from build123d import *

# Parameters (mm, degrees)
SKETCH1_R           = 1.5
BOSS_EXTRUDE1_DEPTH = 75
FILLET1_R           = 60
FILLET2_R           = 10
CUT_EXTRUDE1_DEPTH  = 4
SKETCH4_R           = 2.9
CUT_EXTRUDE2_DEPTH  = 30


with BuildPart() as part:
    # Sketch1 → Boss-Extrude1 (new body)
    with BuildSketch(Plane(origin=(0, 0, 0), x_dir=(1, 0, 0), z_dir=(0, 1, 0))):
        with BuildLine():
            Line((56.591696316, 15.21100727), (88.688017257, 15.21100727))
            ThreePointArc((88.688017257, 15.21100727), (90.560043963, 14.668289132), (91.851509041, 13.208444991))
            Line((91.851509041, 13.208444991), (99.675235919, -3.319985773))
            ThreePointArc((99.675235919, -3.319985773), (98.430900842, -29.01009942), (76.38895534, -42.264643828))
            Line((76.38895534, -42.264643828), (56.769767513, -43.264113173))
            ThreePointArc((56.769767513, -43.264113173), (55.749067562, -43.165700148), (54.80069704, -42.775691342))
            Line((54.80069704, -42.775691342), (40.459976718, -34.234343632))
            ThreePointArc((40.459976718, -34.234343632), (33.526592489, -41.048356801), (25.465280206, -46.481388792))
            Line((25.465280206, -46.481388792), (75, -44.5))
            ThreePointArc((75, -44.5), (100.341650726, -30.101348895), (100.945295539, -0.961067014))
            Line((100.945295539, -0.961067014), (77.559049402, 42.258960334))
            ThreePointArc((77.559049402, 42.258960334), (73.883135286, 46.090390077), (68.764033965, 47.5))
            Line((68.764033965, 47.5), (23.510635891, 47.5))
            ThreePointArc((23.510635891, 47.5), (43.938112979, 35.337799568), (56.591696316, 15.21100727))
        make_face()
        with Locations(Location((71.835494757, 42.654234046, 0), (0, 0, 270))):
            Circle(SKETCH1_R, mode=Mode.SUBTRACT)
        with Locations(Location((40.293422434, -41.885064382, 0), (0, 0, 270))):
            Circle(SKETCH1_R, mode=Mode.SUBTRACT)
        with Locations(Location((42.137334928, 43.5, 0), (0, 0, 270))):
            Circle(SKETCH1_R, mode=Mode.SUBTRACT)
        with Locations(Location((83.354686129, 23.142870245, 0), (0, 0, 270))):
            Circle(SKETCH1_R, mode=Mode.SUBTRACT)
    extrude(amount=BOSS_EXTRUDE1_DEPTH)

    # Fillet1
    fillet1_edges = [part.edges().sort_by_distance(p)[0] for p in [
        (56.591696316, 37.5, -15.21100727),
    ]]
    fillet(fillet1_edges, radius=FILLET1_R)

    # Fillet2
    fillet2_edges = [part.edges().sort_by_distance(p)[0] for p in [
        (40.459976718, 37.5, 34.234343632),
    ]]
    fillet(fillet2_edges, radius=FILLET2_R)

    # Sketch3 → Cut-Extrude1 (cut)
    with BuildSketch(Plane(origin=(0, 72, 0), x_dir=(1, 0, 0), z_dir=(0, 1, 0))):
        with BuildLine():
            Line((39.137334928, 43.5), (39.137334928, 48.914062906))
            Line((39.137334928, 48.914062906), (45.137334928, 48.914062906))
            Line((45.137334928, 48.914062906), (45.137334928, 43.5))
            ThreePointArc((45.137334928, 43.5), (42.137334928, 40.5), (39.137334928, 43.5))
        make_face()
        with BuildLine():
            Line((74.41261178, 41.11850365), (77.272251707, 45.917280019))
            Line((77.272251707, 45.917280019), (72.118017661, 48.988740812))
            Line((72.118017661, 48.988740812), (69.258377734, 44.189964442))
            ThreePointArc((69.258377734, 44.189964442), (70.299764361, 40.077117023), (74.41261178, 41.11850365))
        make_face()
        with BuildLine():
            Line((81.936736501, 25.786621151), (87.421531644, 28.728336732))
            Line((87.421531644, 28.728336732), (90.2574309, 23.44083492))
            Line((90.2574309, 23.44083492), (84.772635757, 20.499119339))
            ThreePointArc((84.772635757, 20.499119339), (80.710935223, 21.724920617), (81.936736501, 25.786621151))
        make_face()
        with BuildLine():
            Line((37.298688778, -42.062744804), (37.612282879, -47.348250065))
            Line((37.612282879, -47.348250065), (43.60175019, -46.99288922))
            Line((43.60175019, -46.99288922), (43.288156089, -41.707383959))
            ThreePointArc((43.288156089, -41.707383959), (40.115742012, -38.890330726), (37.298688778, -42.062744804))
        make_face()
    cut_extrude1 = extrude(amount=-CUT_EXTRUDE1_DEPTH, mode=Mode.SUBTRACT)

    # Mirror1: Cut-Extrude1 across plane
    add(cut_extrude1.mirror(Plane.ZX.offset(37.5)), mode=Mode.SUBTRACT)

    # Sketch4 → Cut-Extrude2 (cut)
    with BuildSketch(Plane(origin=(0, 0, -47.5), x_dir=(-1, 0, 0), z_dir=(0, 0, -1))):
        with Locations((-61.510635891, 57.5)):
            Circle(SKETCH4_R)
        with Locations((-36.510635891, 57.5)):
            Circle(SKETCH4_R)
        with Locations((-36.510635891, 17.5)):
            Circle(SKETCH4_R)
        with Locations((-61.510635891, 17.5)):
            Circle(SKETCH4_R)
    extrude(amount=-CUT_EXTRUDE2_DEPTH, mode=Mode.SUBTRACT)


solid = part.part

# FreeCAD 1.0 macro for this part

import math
import FreeCAD as App
import Part
import Sketcher
from FreeCAD import Vector
Q = App.Units.Quantity


def edges_at(feature, points):
    """Names of the edges that pass closest to the given points."""
    edges = feature.Shape.Edges
    near = lambda p: min(range(len(edges)), key=lambda i: edges[i].distToShape(Part.Vertex(*p))[0])
    return sorted({f"Edge{near(p) + 1}" for p in points})

doc = App.newDocument("Part")
params = doc.addObject("Spreadsheet::Sheet", "Params")
for row, (alias, value) in enumerate([
    ("sketch1_diameter", "3 mm"),
    ("sketch1_radius", "53 mm"),
    ("sketch1_radius2", "10 mm"),
    ("sketch1_radius3", "3.5 mm"),
    ("sketch1_radius4", "27.3 mm"),
    ("pad1_length", "75 mm"),
    ("fillet_radius", "60 mm"),
    ("fillet2_radius", "10 mm"),
    ("sketch2_radius", "3 mm"),
    ("pocket1_length", "4 mm"),
    ("sketch3_diameter", "5.8 mm"),
    ("pocket2_length", "30 mm"),
], start=1):
    params.set(f"A{row}", alias)
    params.set(f"B{row}", "=" + value)
    params.setAlias(f"B{row}", alias)

body = doc.addObject("PartDesign::Body", "Body")

sketch1 = body.newObject("Sketcher::SketchObject", "Sketch")
sketch1.AttachmentSupport = (doc.getObject("XZ_Plane"), [""])
sketch1.MapMode = "FlatFace"
sketch1.addGeometry([
    Part.LineSegment(Vector(56.6, -15.2, 0), Vector(88.7, -15.2, 0)),
    Part.ArcOfCircle(Part.Circle(Vector(88.7, -11.7, 0), Vector(0, 0, 1), 3.5), math.radians(-90), math.radians(-25)),
    Part.LineSegment(Vector(91.9, -13.2, 0), Vector(99.7, 3.3, 0)),
    Part.ArcOfCircle(Part.Circle(Vector(75, 15, 0), Vector(0, 0, 1), 27.3), math.radians(-25), math.radians(87)),
    Part.LineSegment(Vector(76.4, 42.3, 0), Vector(56.8, 43.3, 0)),
    Part.ArcOfCircle(Part.Circle(Vector(56.6, 39.8, 0), Vector(0, 0, 1), 3.5), math.radians(87), math.radians(121)),
    Part.LineSegment(Vector(54.8, 42.8, 0), Vector(40.5, 34.2, 0)),
    Part.ArcOfCircle(Part.Circle(Vector(0, 0, 0), Vector(0, 0, 1), 53), math.radians(40), math.radians(61)),
    Part.LineSegment(Vector(25.5, 46.5, 0), Vector(75, 44.5, 0)),
    Part.ArcOfCircle(Part.Circle(Vector(75, 15, 0), Vector(0, 0, 1), 29.5), math.radians(-28), math.radians(90)),
    Part.LineSegment(Vector(100.9, 1, 0), Vector(77.6, -42.3, 0)),
    Part.ArcOfCircle(Part.Circle(Vector(68.8, -37.5, 0), Vector(0, 0, 1), 10), math.radians(-90), math.radians(-28)),
    Part.LineSegment(Vector(68.8, -47.5, 0), Vector(23.5, -47.5, 0)),
    Part.ArcOfCircle(Part.Circle(Vector(8.5, 1, 0), Vector(0, 0, 1), 50.8), math.radians(-73), math.radians(-19)),
    Part.Circle(Vector(40.3, 41.9, 0), Vector(0, 0, 1), 1.5),
    Part.Circle(Vector(42.1, -43.5, 0), Vector(0, 0, 1), 1.5),
    Part.Circle(Vector(71.8, -42.7, 0), Vector(0, 0, 1), 1.5),
    Part.Circle(Vector(83.4, -23.1, 0), Vector(0, 0, 1), 1.5),
], False)
sketch1.addConstraint([
    Sketcher.Constraint("Tangent", 0, 2, 1, 1),
    Sketcher.Constraint("Tangent", 1, 2, 2, 1),
    Sketcher.Constraint("Tangent", 2, 2, 3, 1),
    Sketcher.Constraint("Tangent", 3, 2, 4, 1),
    Sketcher.Constraint("Tangent", 4, 2, 5, 1),
    Sketcher.Constraint("Tangent", 5, 2, 6, 1),
    Sketcher.Constraint("Coincident", 6, 2, 7, 1),
    Sketcher.Constraint("Coincident", 7, 2, 8, 1),
    Sketcher.Constraint("Coincident", 8, 2, 9, 2),
    Sketcher.Constraint("Tangent", 9, 1, 10, 1),
    Sketcher.Constraint("Tangent", 10, 2, 11, 2),
    Sketcher.Constraint("Tangent", 11, 1, 12, 1),
    Sketcher.Constraint("Coincident", 12, 2, 13, 1),
    Sketcher.Constraint("Coincident", 13, 2, 0, 1),
    Sketcher.Constraint("Horizontal", 0),
    Sketcher.Constraint("Horizontal", 12),
    Sketcher.Constraint("Coincident", 7, 3, -1, 1),
    Sketcher.Constraint("Coincident", 9, 3, 3, 3),
    Sketcher.Constraint("Equal", 1, 5),
    Sketcher.Constraint("Equal", 14, 15),
    Sketcher.Constraint("Equal", 15, 16),
    Sketcher.Constraint("Equal", 16, 17),
    Sketcher.Constraint("Vertical", 9, 3, 8, 2),
    Sketcher.Constraint("Vertical", 5, 3, 13, 2),
    Sketcher.Constraint("Diameter", 14, Q("3 mm")),
    Sketcher.Constraint("Radius", 7, Q("53 mm")),
    Sketcher.Constraint("Radius", 11, Q("10 mm")),
    Sketcher.Constraint("Radius", 1, Q("3.5 mm")),
    Sketcher.Constraint("Radius", 3, Q("27.3 mm")),
    Sketcher.Constraint("Radius", 9, Q("29.5 mm")),
    Sketcher.Constraint("DistanceX", -1, 1, 3, 3, Q("75 mm")),
    Sketcher.Constraint("DistanceY", -1, 1, 3, 3, Q("15 mm")),
    Sketcher.Constraint("DistanceY", 15, 3, 11, 3, Q("6 mm")),
    Sketcher.Constraint("DistanceY", 11, 3, -1, 1, Q("37.5 mm")),
    Sketcher.Constraint("Radius", 13, Q("50.78355 mm")),
    Sketcher.Constraint("DistanceX", 12, 2, 12, 1, Q("45.253398 mm")),
    Sketcher.Constraint("DistanceX", 5, 2, 5, 3, Q("1.790999 mm")),
    Sketcher.Constraint("Distance", 2, Q("18.2866 mm")),
    Sketcher.Constraint("DistanceX", 0, 1, 0, 2, Q("32.096321 mm")),
    Sketcher.Constraint("DistanceX", 15, 3, 11, 3, Q("26.626699 mm")),
    Sketcher.Constraint("DistanceY", 6, 2, 3, 2, Q("8.0303 mm")),
    Sketcher.Constraint("DistanceX", 13, 2, 16, 3, Q("15.243798 mm")),
    Sketcher.Constraint("Distance", 4, Q("19.64463 mm")),
    Sketcher.Constraint("Distance", 8, Q("49.574332 mm")),
    Sketcher.Constraint("DistanceY", 17, 3, -1, 1, Q("23.14287 mm")),
    Sketcher.Constraint("DistanceX", -1, 1, 10, 2, Q("77.559049 mm")),
    Sketcher.Constraint("DistanceY", 5, 3, 14, 3, Q("2.116418 mm")),
    Sketcher.Constraint("DistanceX", 17, 3, 1, 3, Q("5.333331 mm")),
    Sketcher.Constraint("DistanceX", -1, 1, 14, 3, Q("40.293422 mm")),
    Sketcher.Constraint("DistanceY", 16, 3, -1, 1, Q("42.654234 mm")),
])
sketch1.setExpression("Constraints[24]", "Params.sketch1_diameter")
sketch1.setExpression("Constraints[25]", "Params.sketch1_radius")
sketch1.setExpression("Constraints[26]", "Params.sketch1_radius2")
sketch1.setExpression("Constraints[27]", "Params.sketch1_radius3")
sketch1.setExpression("Constraints[28]", "Params.sketch1_radius4")
pad1 = body.newObject("PartDesign::Pad", "Pad")
pad1.Profile = sketch1
pad1.setExpression("Length", "Params.pad1_length")
pad1.Reversed = True
doc.recompute()

fillet = body.newObject("PartDesign::Fillet", "Fillet")
fillet.Base = (pad1, edges_at(pad1, [(56.592, 37.5, -15.211)]))
fillet.setExpression("Radius", "Params.fillet_radius")
doc.recompute()

fillet2 = body.newObject("PartDesign::Fillet", "Fillet001")
fillet2.Base = (fillet, edges_at(fillet, [(40.46, 37.5, 34.234)]))
fillet2.setExpression("Radius", "Params.fillet2_radius")

sketch2 = body.newObject("Sketcher::SketchObject", "Sketch001")
sketch2.AttachmentSupport = (doc.getObject("XZ_Plane"), [""])
sketch2.MapMode = "FlatFace"
sketch2.AttachmentOffset = App.Placement(Vector(0, 0, -72), App.Rotation())
sketch2.addGeometry([
    Part.LineSegment(Vector(39.1, -48.9, 0), Vector(39.1, -43.5, 0)),
    Part.ArcOfCircle(Part.Circle(Vector(42.1, -43.5, 0), Vector(0, 0, 1), 3), math.radians(0), math.radians(180)),
    Part.LineSegment(Vector(45.1, -43.5, 0), Vector(45.1, -48.9, 0)),
    Part.LineSegment(Vector(45.1, -48.9, 0), Vector(39.1, -48.9, 0)),
    Part.LineSegment(Vector(74.4, -41.1, 0), Vector(77.3, -45.9, 0)),
    Part.LineSegment(Vector(77.3, -45.9, 0), Vector(72.1, -49, 0)),
    Part.LineSegment(Vector(72.1, -49, 0), Vector(69.3, -44.2, 0)),
    Part.ArcOfCircle(Part.Circle(Vector(71.8, -42.7, 0), Vector(0, 0, 1), 3), math.radians(31), math.radians(211)),
    Part.LineSegment(Vector(87.4, -28.7, 0), Vector(81.9, -25.8, 0)),
    Part.ArcOfCircle(Part.Circle(Vector(83.4, -23.1, 0), Vector(0, 0, 1), 3), math.radians(62), math.radians(242)),
    Part.LineSegment(Vector(84.8, -20.5, 0), Vector(90.3, -23.4, 0)),
    Part.LineSegment(Vector(90.3, -23.4, 0), Vector(87.4, -28.7, 0)),
    Part.LineSegment(Vector(37.3, 42.1, 0), Vector(37.6, 47.3, 0)),
    Part.LineSegment(Vector(37.6, 47.3, 0), Vector(43.6, 47, 0)),
    Part.LineSegment(Vector(43.6, 47, 0), Vector(43.3, 41.7, 0)),
    Part.ArcOfCircle(Part.Circle(Vector(40.3, 41.9, 0), Vector(0, 0, 1), 3), math.radians(177), math.radians(357)),
], False)
sketch2.addConstraint([
    Sketcher.Constraint("Tangent", 0, 2, 1, 2),
    Sketcher.Constraint("Tangent", 1, 1, 2, 1),
    Sketcher.Constraint("Coincident", 2, 2, 3, 1),
    Sketcher.Constraint("Coincident", 3, 2, 0, 1),
    Sketcher.Constraint("Coincident", 4, 2, 5, 1),
    Sketcher.Constraint("Coincident", 5, 2, 6, 1),
    Sketcher.Constraint("Tangent", 6, 2, 7, 2),
    Sketcher.Constraint("Tangent", 7, 1, 4, 1),
    Sketcher.Constraint("Tangent", 8, 2, 9, 2),
    Sketcher.Constraint("Tangent", 9, 1, 10, 1),
    Sketcher.Constraint("Coincident", 10, 2, 11, 1),
    Sketcher.Constraint("Coincident", 11, 2, 8, 1),
    Sketcher.Constraint("Coincident", 12, 2, 13, 1),
    Sketcher.Constraint("Coincident", 13, 2, 14, 1),
    Sketcher.Constraint("Tangent", 14, 2, 15, 2),
    Sketcher.Constraint("Tangent", 15, 1, 12, 1),
    Sketcher.Constraint("Vertical", 0),
    Sketcher.Constraint("Vertical", 2),
    Sketcher.Constraint("Horizontal", 3),
    Sketcher.Constraint("Equal", 1, 7),
    Sketcher.Constraint("Equal", 7, 9),
    Sketcher.Constraint("Equal", 9, 15),
    Sketcher.Constraint("Perpendicular", 4, 5),
    Sketcher.Constraint("Perpendicular", 5, 6),
    Sketcher.Constraint("Parallel", 8, 10),
    Sketcher.Constraint("Perpendicular", 10, 11),
    Sketcher.Constraint("Perpendicular", 12, 13),
    Sketcher.Constraint("Perpendicular", 13, 14),
    Sketcher.Constraint("Radius", 1, Q("3 mm")),
    Sketcher.Constraint("DistanceY", 1, 3, -1, 1, Q("43.5 mm")),
    Sketcher.Constraint("Distance", 12, Q("5.2948 mm")),
    Sketcher.Constraint("DistanceY", 7, 3, 15, 3, Q("84.539298 mm")),
    Sketcher.Constraint("DistanceY", 2, 2, 6, 2, Q("4.724098 mm")),
    Sketcher.Constraint("DistanceX", 8, 2, 9, 1, Q("2.835899 mm")),
    Sketcher.Constraint("Distance", 8, Q("6.223879 mm")),
    Sketcher.Constraint("DistanceY", 0, 1, 0, 2, Q("5.414063 mm")),
    Sketcher.Constraint("DistanceY", 9, 3, -1, 1, Q("23.14287 mm")),
    Sketcher.Constraint("DistanceX", -1, 1, 4, 2, Q("77.272252 mm")),
    Sketcher.Constraint("DistanceY", 4, 2, -1, 1, Q("45.91728 mm")),
    Sketcher.Constraint("DistanceY", 5, 2, -1, 1, Q("48.988741 mm")),
    Sketcher.Constraint("DistanceX", -1, 1, 10, 2, Q("90.257431 mm")),
    Sketcher.Constraint("DistanceY", -1, 1, 12, 2, Q("47.34825 mm")),
    Sketcher.Constraint("DistanceX", -1, 1, 13, 2, Q("43.60175 mm")),
    Sketcher.Constraint("DistanceX", 1, 3, 7, 3, Q("29.69816 mm")),
])
sketch2.setExpression("Constraints[28]", "Params.sketch2_radius")
pocket1 = body.newObject("PartDesign::Pocket", "Pocket")
pocket1.Profile = sketch2
pocket1.setExpression("Length", "Params.pocket1_length")
pocket1.Reversed = True
doc.recompute()

datumplane = body.newObject("PartDesign::Plane", "DatumPlane")
datumplane.AttachmentSupport = (doc.getObject("XZ_Plane"), [""])
datumplane.MapMode = "FlatFace"
datumplane.AttachmentOffset = App.Placement(Vector(0, 0, -37.5), App.Rotation())
mirrored = body.newObject("PartDesign::Mirrored", "Mirrored")
mirrored.Originals = [pocket1]
mirrored.MirrorPlane = (datumplane, [""])
body.Tip = mirrored

sketch3 = body.newObject("Sketcher::SketchObject", "Sketch002")
sketch3.AttachmentSupport = (doc.getObject("XY_Plane"), [""])
sketch3.MapMode = "FlatFace"
sketch3.AttachmentOffset = App.Placement(Vector(0, 0, -47.5), App.Rotation())
sketch3.addGeometry([
    Part.Circle(Vector(61.5, 57.5, 0), Vector(0, 0, 1), 2.9),
    Part.Circle(Vector(36.5, 57.5, 0), Vector(0, 0, 1), 2.9),
    Part.Circle(Vector(36.5, 17.5, 0), Vector(0, 0, 1), 2.9),
    Part.Circle(Vector(61.5, 17.5, 0), Vector(0, 0, 1), 2.9),
], False)
sketch3.addConstraint([
    Sketcher.Constraint("Equal", 0, 1),
    Sketcher.Constraint("Equal", 1, 2),
    Sketcher.Constraint("Equal", 2, 3),
    Sketcher.Constraint("Horizontal", 0, 3, 1, 3),
    Sketcher.Constraint("Horizontal", 2, 3, 3, 3),
    Sketcher.Constraint("Vertical", 1, 3, 2, 3),
    Sketcher.Constraint("Vertical", 0, 3, 3, 3),
    Sketcher.Constraint("Diameter", 0, Q("5.8 mm")),
    Sketcher.Constraint("DistanceX", 1, 3, 0, 3, Q("25 mm")),
    Sketcher.Constraint("DistanceY", 2, 3, 1, 3, Q("40 mm")),
    Sketcher.Constraint("DistanceY", -1, 1, 0, 3, Q("57.5 mm")),
    Sketcher.Constraint("DistanceX", -1, 1, 0, 3, Q("61.510636 mm")),
])
sketch3.setExpression("Constraints[7]", "Params.sketch3_diameter")
pocket2 = body.newObject("PartDesign::Pocket", "Pocket001")
pocket2.Profile = sketch3
pocket2.setExpression("Length", "Params.pocket2_length")
pocket2.Reversed = True

doc.recompute()
